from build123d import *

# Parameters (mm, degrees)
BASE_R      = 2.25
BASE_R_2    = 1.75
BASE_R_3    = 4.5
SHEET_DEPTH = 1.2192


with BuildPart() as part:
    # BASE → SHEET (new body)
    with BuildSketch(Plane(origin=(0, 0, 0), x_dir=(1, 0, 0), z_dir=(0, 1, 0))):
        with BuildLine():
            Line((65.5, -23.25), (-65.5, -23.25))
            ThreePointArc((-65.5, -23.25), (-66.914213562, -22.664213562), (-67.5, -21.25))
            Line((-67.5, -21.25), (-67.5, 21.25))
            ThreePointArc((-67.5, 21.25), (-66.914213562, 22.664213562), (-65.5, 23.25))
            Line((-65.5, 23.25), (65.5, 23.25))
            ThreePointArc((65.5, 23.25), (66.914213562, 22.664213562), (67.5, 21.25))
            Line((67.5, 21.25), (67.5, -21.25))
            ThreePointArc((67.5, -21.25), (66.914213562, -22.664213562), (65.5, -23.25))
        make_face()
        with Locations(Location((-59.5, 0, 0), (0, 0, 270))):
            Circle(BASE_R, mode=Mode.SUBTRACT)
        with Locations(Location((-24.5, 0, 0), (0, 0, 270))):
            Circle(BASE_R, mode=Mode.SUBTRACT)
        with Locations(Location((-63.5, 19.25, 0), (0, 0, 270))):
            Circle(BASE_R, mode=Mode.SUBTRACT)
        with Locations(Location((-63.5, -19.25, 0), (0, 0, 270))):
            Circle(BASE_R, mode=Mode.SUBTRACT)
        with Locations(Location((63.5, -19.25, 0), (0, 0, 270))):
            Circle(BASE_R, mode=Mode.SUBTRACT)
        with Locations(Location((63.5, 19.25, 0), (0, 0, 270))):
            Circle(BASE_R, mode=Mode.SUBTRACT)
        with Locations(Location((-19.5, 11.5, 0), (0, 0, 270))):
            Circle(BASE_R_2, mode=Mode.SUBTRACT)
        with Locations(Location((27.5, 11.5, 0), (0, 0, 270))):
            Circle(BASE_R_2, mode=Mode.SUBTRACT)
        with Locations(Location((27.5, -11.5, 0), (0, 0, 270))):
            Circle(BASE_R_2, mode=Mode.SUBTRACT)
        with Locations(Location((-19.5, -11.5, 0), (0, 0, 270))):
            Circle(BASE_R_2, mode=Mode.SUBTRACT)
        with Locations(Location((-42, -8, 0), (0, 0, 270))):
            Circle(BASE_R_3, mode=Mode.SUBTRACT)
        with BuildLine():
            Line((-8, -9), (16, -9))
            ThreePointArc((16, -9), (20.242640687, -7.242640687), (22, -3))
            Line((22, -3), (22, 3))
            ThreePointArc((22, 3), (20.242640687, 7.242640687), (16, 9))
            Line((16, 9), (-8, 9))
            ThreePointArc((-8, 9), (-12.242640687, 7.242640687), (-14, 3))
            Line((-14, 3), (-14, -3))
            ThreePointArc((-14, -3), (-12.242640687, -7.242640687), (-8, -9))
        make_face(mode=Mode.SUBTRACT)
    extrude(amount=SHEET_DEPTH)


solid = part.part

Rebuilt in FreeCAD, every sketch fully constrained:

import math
import FreeCAD as App
import Part
import Sketcher

doc = App.newDocument("Part")
body = doc.addObject("PartDesign::Body", "Body")

# Sketch on XZ plane
sketch1 = doc.addObject("Sketcher::SketchObject", "Sketch")
body.addObject(sketch1)
sketch1.AttachmentSupport = (doc.XZ_Plane, [""])
sketch1.MapMode = "FlatFace"
sketch1.addGeometry([
    Part.LineSegment(App.Vector(-65.5, 23.2, 0), App.Vector(65.5, 23.2, 0)),  # 0
    Part.ArcOfCircle(Part.Circle(App.Vector(65.5, 21.2, 0), App.Vector(0, 0, 1), 2), math.radians(0), math.radians(90)),  # 1
    Part.LineSegment(App.Vector(67.5, 21.2, 0), App.Vector(67.5, -21.2, 0)),  # 2
    Part.ArcOfCircle(Part.Circle(App.Vector(65.5, -21.2, 0), App.Vector(0, 0, 1), 2), math.radians(-90), math.radians(0)),  # 3
    Part.LineSegment(App.Vector(65.5, -23.2, 0), App.Vector(-65.5, -23.2, 0)),  # 4
    Part.ArcOfCircle(Part.Circle(App.Vector(-65.5, -21.2, 0), App.Vector(0, 0, 1), 2), math.radians(-180), math.radians(-90)),  # 5
    Part.LineSegment(App.Vector(-67.5, -21.2, 0), App.Vector(-67.5, 21.2, 0)),  # 6
    Part.ArcOfCircle(Part.Circle(App.Vector(-65.5, 21.2, 0), App.Vector(0, 0, 1), 2), math.radians(90), math.radians(180)),  # 7
    Part.Circle(App.Vector(63.5, 19.2, 0), App.Vector(0, 0, 1), 2.2),  # 8
    Part.Circle(App.Vector(27.5, 11.5, 0), App.Vector(0, 0, 1), 1.8),  # 9
    Part.Circle(App.Vector(-19.5, 11.5, 0), App.Vector(0, 0, 1), 1.8),  # 10
    Part.Circle(App.Vector(-63.5, 19.2, 0), App.Vector(0, 0, 1), 2.2),  # 11
    Part.Circle(App.Vector(-42, 8, 0), App.Vector(0, 0, 1), 4.5),  # 12
    Part.ArcOfCircle(Part.Circle(App.Vector(-8, 3, 0), App.Vector(0, 0, 1), 6), math.radians(90), math.radians(180)),  # 13
    Part.LineSegment(App.Vector(-14, 3, 0), App.Vector(-14, -3, 0)),  # 14
    Part.ArcOfCircle(Part.Circle(App.Vector(-8, -3, 0), App.Vector(0, 0, 1), 6), math.radians(180), math.radians(270)),  # 15
    Part.LineSegment(App.Vector(-8, -9, 0), App.Vector(16, -9, 0)),  # 16
    Part.ArcOfCircle(Part.Circle(App.Vector(16, -3, 0), App.Vector(0, 0, 1), 6), math.radians(-90), math.radians(0)),  # 17
    Part.LineSegment(App.Vector(22, -3, 0), App.Vector(22, 3, 0)),  # 18
    Part.ArcOfCircle(Part.Circle(App.Vector(16, 3, 0), App.Vector(0, 0, 1), 6), math.radians(0), math.radians(90)),  # 19
    Part.LineSegment(App.Vector(16, 9, 0), App.Vector(-8, 9, 0)),  # 20
    Part.Circle(App.Vector(63.5, -19.2, 0), App.Vector(0, 0, 1), 2.2),  # 21
    Part.Circle(App.Vector(27.5, -11.5, 0), App.Vector(0, 0, 1), 1.8),  # 22
    Part.Circle(App.Vector(-24.5, 0, 0), App.Vector(0, 0, 1), 2.2),  # 23
    Part.Circle(App.Vector(-59.5, 0, 0), App.Vector(0, 0, 1), 2.2),  # 24
    Part.Circle(App.Vector(-19.5, -11.5, 0), App.Vector(0, 0, 1), 1.8),  # 25
    Part.Circle(App.Vector(-63.5, -19.2, 0), App.Vector(0, 0, 1), 2.2),  # 26
], False)
sketch1.addConstraint([
    Sketcher.Constraint("Tangent", 0, 2, 1, 2),
    Sketcher.Constraint("Tangent", 1, 1, 2, 1),
    Sketcher.Constraint("Tangent", 2, 2, 3, 2),
    Sketcher.Constraint("Tangent", 3, 1, 4, 1),
    Sketcher.Constraint("Tangent", 4, 2, 5, 2),
    Sketcher.Constraint("Tangent", 5, 1, 6, 1),
    Sketcher.Constraint("Tangent", 6, 2, 7, 2),
    Sketcher.Constraint("Tangent", 7, 1, 0, 1),
    Sketcher.Constraint("Tangent", 13, 2, 14, 1),
    Sketcher.Constraint("Tangent", 14, 2, 15, 1),
    Sketcher.Constraint("Tangent", 15, 2, 16, 1),
    Sketcher.Constraint("Tangent", 16, 2, 17, 1),
    Sketcher.Constraint("Tangent", 17, 2, 18, 1),
    Sketcher.Constraint("Tangent", 18, 2, 19, 1),
    Sketcher.Constraint("Tangent", 19, 2, 20, 1),
    Sketcher.Constraint("Tangent", 20, 2, 13, 1),
    Sketcher.Constraint("Horizontal", 0),
    Sketcher.Constraint("Vertical", 2),
    Sketcher.Constraint("Horizontal", 4),
    Sketcher.Constraint("Vertical", 6),
    Sketcher.Constraint("Vertical", 14),
    Sketcher.Constraint("Horizontal", 16),
    Sketcher.Constraint("Vertical", 18),
    Sketcher.Constraint("Horizontal", 20),
    Sketcher.Constraint("Equal", 1, 3),
    Sketcher.Constraint("Equal", 3, 5),
    Sketcher.Constraint("Equal", 5, 7),
    Sketcher.Constraint("Equal", 9, 10),
    Sketcher.Constraint("Equal", 8, 11),
    Sketcher.Constraint("Equal", 13, 15),
    Sketcher.Constraint("Equal", 15, 17),
    Sketcher.Constraint("Equal", 17, 19),
    Sketcher.Constraint("Equal", 11, 21),
    Sketcher.Constraint("Equal", 10, 22),
    Sketcher.Constraint("Equal", 21, 23),
    Sketcher.Constraint("Equal", 23, 24),
    Sketcher.Constraint("Equal", 22, 25),
    Sketcher.Constraint("Equal", 24, 26),
    Sketcher.Constraint("Symmetric", 1, 3, 5, 3, -1, 1),
    Sketcher.Constraint("Symmetric", 11, 3, 21, 3, -1, 1),
    Sketcher.Constraint("Symmetric", 8, 3, 26, 3, -1, 1),
    Sketcher.Constraint("Symmetric", 8, 3, 11, 3, -2),
    Sketcher.Constraint("Symmetric", 9, 3, 22, 3, -1),
    Sketcher.Constraint("Symmetric", 10, 3, 25, 3, -1),
    Sketcher.Constraint("PointOnObject", 23, 3, -1),
    Sketcher.Constraint("PointOnObject", 24, 3, -1),
    Sketcher.Constraint("Horizontal", 9, 3, 10, 3),
    Sketcher.Constraint("Diameter", 12, 9.0),
    Sketcher.Constraint("Radius", 1, 2.0),
    Sketcher.Constraint("Radius", 13, 6.0),
    Sketcher.Constraint("Diameter", 8, 4.5),
    Sketcher.Constraint("Diameter", 9, 3.5),
    Sketcher.Constraint("DistanceX", 0, 1, 0, 2, 131.0),
    Sketcher.Constraint("DistanceX", 16, 1, 16, 2, 24.0),
    Sketcher.Constraint("DistanceY", 14, 2, 14, 1, 6.0),
    Sketcher.Constraint("DistanceY", 2, 2, 2, 1, 42.5),
    Sketcher.Constraint("DistanceX", 12, 3, -1, 1, 42.0),
    Sketcher.Constraint("DistanceY", -1, 1, 12, 3, 8.0),
    Sketcher.Constraint("DistanceX", 13, 3, -1, 1, 8.0),
    Sketcher.Constraint("DistanceY", -1, 1, 13, 3, 3.0),
    Sketcher.Constraint("DistanceX", 8, 3, 1, 3, 2.0),
    Sketcher.Constraint("DistanceY", 8, 3, 1, 3, 2.0),
    Sketcher.Constraint("DistanceX", 9, 3, 8, 3, 36.0),
    Sketcher.Constraint("DistanceX", 10, 3, 9, 3, 47.0),
    Sketcher.Constraint("DistanceY", 22, 3, 9, 3, 23.0),
    Sketcher.Constraint("DistanceX", 23, 3, 10, 3, 5.0),
    Sketcher.Constraint("DistanceX", 11, 3, 24, 3, 4.0),
])
pad1 = doc.addObject("PartDesign::Pad", "Pad")
body.addObject(pad1)
pad1.Profile = sketch1
pad1.Length = 1.2192
pad1.Reversed = True

doc.recompute()
